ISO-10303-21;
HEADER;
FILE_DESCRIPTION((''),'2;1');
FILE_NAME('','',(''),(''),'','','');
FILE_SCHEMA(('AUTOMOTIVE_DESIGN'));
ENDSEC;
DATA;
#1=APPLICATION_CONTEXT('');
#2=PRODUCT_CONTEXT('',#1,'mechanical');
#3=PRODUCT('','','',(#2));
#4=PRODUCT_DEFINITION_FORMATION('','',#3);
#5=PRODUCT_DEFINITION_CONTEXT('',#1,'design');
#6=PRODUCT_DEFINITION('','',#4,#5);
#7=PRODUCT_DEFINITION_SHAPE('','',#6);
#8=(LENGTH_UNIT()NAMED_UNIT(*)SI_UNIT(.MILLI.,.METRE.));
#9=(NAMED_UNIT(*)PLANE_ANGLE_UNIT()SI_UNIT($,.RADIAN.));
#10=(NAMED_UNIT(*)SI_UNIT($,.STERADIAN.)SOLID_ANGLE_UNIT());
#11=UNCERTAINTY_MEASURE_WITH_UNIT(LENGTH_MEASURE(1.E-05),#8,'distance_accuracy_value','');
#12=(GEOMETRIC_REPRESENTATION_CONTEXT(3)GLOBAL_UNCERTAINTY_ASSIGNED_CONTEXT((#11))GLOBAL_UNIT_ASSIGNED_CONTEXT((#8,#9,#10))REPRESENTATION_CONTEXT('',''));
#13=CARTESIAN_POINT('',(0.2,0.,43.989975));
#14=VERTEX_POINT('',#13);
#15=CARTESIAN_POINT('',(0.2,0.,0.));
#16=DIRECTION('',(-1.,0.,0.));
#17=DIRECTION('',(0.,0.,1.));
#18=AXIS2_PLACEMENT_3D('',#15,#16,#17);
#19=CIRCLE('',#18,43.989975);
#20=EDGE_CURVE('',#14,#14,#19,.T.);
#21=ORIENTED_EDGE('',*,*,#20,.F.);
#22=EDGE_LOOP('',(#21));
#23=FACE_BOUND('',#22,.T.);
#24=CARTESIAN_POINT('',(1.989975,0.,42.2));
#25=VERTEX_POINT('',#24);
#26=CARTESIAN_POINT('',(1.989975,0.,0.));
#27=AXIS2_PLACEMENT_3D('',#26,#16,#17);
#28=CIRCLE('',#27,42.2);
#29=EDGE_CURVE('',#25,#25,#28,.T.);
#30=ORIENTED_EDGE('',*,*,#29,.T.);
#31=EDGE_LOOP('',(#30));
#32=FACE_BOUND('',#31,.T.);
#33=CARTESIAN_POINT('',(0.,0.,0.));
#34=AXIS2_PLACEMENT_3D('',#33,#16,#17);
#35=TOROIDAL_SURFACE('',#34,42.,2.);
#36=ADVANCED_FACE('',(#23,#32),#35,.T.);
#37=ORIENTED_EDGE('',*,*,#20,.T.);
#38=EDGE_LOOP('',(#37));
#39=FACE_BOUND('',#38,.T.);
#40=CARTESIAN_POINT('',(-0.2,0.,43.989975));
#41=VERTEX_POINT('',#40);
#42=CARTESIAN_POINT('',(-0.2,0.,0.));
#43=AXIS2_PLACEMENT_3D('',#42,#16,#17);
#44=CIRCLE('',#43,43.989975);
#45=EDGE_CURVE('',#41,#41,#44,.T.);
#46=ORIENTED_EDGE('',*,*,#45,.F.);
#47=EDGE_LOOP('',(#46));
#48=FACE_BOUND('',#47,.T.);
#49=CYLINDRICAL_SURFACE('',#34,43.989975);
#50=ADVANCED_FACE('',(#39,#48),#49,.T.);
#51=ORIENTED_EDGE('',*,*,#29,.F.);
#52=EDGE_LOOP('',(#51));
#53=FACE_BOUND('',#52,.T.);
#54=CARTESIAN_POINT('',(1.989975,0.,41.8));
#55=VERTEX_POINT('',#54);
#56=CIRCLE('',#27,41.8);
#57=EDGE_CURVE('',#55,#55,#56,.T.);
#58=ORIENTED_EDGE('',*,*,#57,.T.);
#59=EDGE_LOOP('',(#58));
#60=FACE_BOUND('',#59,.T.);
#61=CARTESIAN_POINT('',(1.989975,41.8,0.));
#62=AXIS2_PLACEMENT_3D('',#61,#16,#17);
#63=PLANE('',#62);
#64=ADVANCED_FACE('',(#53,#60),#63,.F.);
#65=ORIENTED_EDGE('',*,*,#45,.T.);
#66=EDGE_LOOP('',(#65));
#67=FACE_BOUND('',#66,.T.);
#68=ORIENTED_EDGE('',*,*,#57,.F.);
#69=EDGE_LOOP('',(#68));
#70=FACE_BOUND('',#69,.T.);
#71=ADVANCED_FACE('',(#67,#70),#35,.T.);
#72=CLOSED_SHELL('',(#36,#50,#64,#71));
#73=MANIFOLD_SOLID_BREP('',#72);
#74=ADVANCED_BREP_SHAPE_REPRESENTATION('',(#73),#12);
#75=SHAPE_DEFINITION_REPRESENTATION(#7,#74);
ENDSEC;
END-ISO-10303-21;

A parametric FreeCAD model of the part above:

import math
import FreeCAD as App
import Part
import Sketcher

V = App.Vector
Q = App.Units.Quantity

doc = App.newDocument("Part")
body = doc.addObject("PartDesign::Body", "Body")

sketch1 = doc.addObject("Sketcher::SketchObject", "Sketch")
body.addObject(sketch1)
sketch1.AttachmentSupport = (doc.XY_Plane, [""])
sketch1.MapMode = "FlatFace"
sketch1.addGeometry([
    Part.LineSegment(V(0.2, 43.99, 0), V(-0.2, 43.99, 0)),
    Part.ArcOfCircle(Part.Circle(V(0, 42, 0), V(0, 0, 1), 2), math.radians(96), math.radians(354)),
    Part.LineSegment(V(1.99, 41.8, 0), V(1.99, 42.2, 0)),
    Part.ArcOfCircle(Part.Circle(V(0, 42, 0), V(0, 0, 1), 2), math.radians(6), math.radians(84)),
], False)
sketch1.addConstraint([
    Sketcher.Constraint("Coincident", 0, 2, 1, 1),
    Sketcher.Constraint("Coincident", 1, 2, 2, 1),
    Sketcher.Constraint("Coincident", 2, 2, 3, 1),
    Sketcher.Constraint("Coincident", 3, 2, 0, 1),
    Sketcher.Constraint("Horizontal", 0),
    Sketcher.Constraint("Vertical", 2),
    Sketcher.Constraint("Coincident", 3, 3, 1, 3),
    Sketcher.Constraint("Equal", 1, 3),
    Sketcher.Constraint("PointOnObject", 1, 3, -2),
    Sketcher.Constraint("Equal", 0, 2),
    Sketcher.Constraint("Radius", 1, Q("2 mm")),
    Sketcher.Constraint("DistanceX", 0, 2, 0, 1, Q("0.4 mm")),
    Sketcher.Constraint("DistanceY", -1, 1, 1, 3, Q("42 mm")),
])
revolution = doc.addObject("PartDesign::Revolution", "Revolution")
body.addObject(revolution)
revolution.Profile = sketch1
revolution.ReferenceAxis = (sketch1, ["H_Axis"])
revolution.Angle = 360

doc.recompute()
